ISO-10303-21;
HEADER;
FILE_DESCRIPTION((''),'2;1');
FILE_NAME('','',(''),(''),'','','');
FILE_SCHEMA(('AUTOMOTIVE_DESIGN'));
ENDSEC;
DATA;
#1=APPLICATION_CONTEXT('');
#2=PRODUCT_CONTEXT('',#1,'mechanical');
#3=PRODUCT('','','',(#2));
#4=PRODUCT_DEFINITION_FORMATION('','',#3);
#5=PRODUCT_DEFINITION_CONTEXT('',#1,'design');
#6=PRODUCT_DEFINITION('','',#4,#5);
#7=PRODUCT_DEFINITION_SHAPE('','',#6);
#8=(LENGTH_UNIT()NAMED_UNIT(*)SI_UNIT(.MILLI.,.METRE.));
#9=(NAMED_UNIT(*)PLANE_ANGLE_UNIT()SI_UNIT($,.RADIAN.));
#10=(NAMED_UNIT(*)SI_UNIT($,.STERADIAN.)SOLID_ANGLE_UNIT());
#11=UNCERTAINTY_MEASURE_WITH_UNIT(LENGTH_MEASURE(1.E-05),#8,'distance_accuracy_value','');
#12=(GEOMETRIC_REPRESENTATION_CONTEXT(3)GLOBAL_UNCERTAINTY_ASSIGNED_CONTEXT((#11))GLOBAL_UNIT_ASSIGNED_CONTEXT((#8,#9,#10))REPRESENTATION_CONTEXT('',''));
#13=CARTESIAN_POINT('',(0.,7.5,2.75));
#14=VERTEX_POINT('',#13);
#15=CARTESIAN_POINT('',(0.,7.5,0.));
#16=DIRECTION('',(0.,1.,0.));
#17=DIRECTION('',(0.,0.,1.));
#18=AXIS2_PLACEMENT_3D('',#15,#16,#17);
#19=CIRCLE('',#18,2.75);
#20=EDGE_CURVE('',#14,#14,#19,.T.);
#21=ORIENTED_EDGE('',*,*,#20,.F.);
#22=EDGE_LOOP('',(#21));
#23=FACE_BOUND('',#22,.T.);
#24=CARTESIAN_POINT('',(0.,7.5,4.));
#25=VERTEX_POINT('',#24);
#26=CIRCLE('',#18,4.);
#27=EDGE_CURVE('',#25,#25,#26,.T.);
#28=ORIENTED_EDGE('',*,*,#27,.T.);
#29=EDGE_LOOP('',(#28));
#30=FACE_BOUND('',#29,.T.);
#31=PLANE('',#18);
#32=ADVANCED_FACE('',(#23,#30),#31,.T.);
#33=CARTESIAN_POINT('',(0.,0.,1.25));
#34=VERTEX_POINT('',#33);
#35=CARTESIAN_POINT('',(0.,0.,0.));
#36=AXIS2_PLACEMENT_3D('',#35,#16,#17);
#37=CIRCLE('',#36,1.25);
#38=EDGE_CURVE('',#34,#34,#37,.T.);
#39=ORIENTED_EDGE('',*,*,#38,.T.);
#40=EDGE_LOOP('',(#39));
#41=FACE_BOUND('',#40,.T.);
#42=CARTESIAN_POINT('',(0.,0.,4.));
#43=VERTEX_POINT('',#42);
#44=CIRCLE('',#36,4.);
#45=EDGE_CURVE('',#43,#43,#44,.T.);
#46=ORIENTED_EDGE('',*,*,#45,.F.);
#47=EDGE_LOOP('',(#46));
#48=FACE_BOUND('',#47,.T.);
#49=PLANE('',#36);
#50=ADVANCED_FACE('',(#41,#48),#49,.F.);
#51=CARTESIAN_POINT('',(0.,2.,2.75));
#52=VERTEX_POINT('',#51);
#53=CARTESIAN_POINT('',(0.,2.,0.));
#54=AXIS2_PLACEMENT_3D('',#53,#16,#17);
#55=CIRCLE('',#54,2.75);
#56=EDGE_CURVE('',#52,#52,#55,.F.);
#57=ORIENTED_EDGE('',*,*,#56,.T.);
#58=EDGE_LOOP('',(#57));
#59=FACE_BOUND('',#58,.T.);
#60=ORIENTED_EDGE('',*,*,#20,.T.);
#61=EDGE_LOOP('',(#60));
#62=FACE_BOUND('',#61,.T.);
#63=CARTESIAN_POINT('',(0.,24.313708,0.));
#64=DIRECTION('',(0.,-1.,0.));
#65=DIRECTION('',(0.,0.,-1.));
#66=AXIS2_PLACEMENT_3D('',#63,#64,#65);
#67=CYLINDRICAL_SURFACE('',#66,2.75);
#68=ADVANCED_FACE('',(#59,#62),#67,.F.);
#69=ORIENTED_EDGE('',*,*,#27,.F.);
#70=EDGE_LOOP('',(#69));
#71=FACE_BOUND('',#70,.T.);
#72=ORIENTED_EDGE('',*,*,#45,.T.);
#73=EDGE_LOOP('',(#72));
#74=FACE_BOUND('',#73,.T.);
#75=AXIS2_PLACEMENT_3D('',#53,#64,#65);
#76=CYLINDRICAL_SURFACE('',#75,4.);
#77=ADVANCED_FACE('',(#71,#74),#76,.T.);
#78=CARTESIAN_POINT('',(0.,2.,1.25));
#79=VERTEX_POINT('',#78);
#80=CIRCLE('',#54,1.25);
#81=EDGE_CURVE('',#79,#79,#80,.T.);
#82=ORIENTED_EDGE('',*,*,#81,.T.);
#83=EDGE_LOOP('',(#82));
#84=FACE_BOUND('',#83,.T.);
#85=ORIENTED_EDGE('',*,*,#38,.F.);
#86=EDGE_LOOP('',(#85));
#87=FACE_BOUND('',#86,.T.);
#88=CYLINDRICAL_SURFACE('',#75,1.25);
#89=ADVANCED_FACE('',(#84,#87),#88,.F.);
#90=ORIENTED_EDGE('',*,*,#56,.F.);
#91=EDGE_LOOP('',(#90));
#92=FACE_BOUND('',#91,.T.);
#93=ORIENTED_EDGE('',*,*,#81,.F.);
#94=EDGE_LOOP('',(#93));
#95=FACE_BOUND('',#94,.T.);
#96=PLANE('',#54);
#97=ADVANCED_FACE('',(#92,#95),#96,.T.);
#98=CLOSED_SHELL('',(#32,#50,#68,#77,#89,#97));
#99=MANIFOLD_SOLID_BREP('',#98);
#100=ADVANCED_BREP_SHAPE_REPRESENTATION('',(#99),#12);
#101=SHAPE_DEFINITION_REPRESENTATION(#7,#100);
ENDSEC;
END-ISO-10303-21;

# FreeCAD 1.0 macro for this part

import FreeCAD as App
import Part
import Sketcher
from FreeCAD import Vector
Q = App.Units.Quantity

doc = App.newDocument("Part")
body = doc.addObject("PartDesign::Body", "Body")

sketch1 = body.newObject("Sketcher::SketchObject", "Sketch")
sketch1.AttachmentSupport = (doc.getObject("XZ_Plane"), [""])
sketch1.MapMode = "FlatFace"
sketch1.addGeometry([
    Part.Circle(Vector(0, 0, 0), Vector(0, 0, 1), 4),
    Part.Circle(Vector(0, 0, 0), Vector(0, 0, 1), 1.25),
], False)
sketch1.addConstraint([
    Sketcher.Constraint("Coincident", 0, 3, -1, 1),
    Sketcher.Constraint("Coincident", 1, 3, -1, 1),
    Sketcher.Constraint("Diameter", 0, Q("8 mm")),
    Sketcher.Constraint("Diameter", 1, Q("2.5 mm")),
])
pad1 = body.newObject("PartDesign::Pad", "Pad")
pad1.Profile = sketch1
pad1.Length = 2
pad1.Reversed = True

sketch2 = body.newObject("Sketcher::SketchObject", "Sketch001")
sketch2.AttachmentSupport = (doc.getObject("XZ_Plane"), [""])
sketch2.MapMode = "FlatFace"
sketch2.addGeometry([
    Part.Circle(Vector(0, 0, 0), Vector(0, 0, 1), 4),
    Part.Circle(Vector(0, 0, 0), Vector(0, 0, 1), 2.75),
], False)
sketch2.addConstraint([
    Sketcher.Constraint("Coincident", 0, 3, -1, 1),
    Sketcher.Constraint("Coincident", 1, 3, -1, 1),
    Sketcher.Constraint("Diameter", 0, Q("8 mm")),
    Sketcher.Constraint("Diameter", 1, Q("5.5 mm")),
])
pad2 = body.newObject("PartDesign::Pad", "Pad001")
pad2.Profile = sketch2
pad2.Length = 7.5
pad2.Reversed = True

doc.recompute()
